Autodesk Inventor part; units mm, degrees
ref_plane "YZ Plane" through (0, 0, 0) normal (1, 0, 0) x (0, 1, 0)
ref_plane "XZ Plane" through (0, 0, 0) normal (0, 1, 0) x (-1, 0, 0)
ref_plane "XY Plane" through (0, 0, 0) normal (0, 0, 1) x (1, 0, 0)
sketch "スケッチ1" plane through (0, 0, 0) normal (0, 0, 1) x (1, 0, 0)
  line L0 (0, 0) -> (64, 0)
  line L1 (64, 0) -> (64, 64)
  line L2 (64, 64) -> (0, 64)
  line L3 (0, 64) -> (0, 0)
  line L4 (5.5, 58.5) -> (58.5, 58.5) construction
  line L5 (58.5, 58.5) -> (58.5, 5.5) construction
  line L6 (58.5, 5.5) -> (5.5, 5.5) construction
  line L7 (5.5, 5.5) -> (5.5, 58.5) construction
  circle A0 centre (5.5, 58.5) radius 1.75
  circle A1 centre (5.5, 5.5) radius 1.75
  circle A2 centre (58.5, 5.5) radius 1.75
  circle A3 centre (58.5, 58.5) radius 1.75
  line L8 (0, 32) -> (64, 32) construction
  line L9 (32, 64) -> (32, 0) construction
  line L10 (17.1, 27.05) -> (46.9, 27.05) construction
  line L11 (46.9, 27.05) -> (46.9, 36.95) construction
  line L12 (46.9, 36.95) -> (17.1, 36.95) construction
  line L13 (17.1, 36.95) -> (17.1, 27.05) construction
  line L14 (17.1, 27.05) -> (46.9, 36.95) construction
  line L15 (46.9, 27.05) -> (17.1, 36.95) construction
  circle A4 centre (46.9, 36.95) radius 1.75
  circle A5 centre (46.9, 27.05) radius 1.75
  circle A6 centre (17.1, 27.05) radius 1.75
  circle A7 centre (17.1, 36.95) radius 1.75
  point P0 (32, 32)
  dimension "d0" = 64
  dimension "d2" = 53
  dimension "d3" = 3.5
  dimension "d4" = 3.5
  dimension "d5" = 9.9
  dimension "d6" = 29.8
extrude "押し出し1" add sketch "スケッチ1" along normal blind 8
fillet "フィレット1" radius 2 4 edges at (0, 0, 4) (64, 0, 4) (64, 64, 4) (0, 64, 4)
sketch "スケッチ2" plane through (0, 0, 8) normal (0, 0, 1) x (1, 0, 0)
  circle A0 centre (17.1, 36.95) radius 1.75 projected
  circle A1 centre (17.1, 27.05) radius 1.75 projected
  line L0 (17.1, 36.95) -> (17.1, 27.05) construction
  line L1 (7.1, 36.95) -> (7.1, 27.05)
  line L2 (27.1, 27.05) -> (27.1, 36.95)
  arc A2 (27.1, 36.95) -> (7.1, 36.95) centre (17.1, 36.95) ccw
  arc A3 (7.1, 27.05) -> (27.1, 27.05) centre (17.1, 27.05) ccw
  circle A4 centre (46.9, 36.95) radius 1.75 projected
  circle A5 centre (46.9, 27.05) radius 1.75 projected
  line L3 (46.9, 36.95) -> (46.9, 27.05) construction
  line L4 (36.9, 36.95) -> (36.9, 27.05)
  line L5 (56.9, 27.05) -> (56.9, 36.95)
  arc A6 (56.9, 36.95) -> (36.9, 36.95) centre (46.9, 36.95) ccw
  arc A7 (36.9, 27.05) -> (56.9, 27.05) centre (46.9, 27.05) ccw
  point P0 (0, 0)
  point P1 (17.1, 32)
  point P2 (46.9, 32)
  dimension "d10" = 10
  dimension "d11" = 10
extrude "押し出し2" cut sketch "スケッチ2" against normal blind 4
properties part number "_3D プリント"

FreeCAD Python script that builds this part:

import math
import FreeCAD as App
import Part
import Sketcher
from FreeCAD import Vector
Q = App.Units.Quantity


def edges_at(feature, points):
    """Names of the edges that pass closest to the given points."""
    edges = feature.Shape.Edges
    near = lambda p: min(range(len(edges)), key=lambda i: edges[i].distToShape(Part.Vertex(*p))[0])
    return sorted({f"Edge{near(p) + 1}" for p in points})

doc = App.newDocument("Part")
body = doc.addObject("PartDesign::Body", "Body")

sketch1 = doc.addObject("Sketcher::SketchObject", "Sketch")
body.addObject(sketch1)
sketch1.AttachmentSupport = (doc.XY_Plane, [""])
sketch1.MapMode = "FlatFace"
sketch1.addGeometry(Part.LineSegment(Vector(0, 64, 0), Vector(0, 0, 0)), False)
sketch1.addGeometry(Part.LineSegment(Vector(0, 0, 0), Vector(64, 0, 0)), False)
sketch1.addGeometry(Part.LineSegment(Vector(64, 0, 0), Vector(64, 64, 0)), False)
sketch1.addGeometry(Part.LineSegment(Vector(64, 64, 0), Vector(0, 64, 0)), False)
sketch1.addGeometry(Part.Circle(Vector(5.5, 5.5, 0), Vector(0, 0, 1), 1.8), False)
sketch1.addGeometry(Part.Circle(Vector(17.1, 27.1, 0), Vector(0, 0, 1), 1.8), False)
sketch1.addGeometry(Part.Circle(Vector(58.5, 5.5, 0), Vector(0, 0, 1), 1.8), False)
sketch1.addGeometry(Part.Circle(Vector(46.9, 27.1, 0), Vector(0, 0, 1), 1.8), False)
sketch1.addGeometry(Part.Circle(Vector(17.1, 37, 0), Vector(0, 0, 1), 1.8), False)
sketch1.addGeometry(Part.Circle(Vector(5.5, 58.5, 0), Vector(0, 0, 1), 1.8), False)
sketch1.addGeometry(Part.Circle(Vector(46.9, 37, 0), Vector(0, 0, 1), 1.8), False)
sketch1.addGeometry(Part.Circle(Vector(58.5, 58.5, 0), Vector(0, 0, 1), 1.8), False)
sketch1.addConstraint(Sketcher.Constraint("Coincident", 0, 2, 1, 1))
sketch1.addConstraint(Sketcher.Constraint("Coincident", 1, 2, 2, 1))
sketch1.addConstraint(Sketcher.Constraint("Coincident", 2, 2, 3, 1))
sketch1.addConstraint(Sketcher.Constraint("Coincident", 3, 2, 0, 1))
sketch1.addConstraint(Sketcher.Constraint("Vertical", 0))
sketch1.addConstraint(Sketcher.Constraint("Horizontal", 1))
sketch1.addConstraint(Sketcher.Constraint("Vertical", 2))
sketch1.addConstraint(Sketcher.Constraint("Horizontal", 3))
sketch1.addConstraint(Sketcher.Constraint("Coincident", 0, 2, -1, 1))
sketch1.addConstraint(Sketcher.Constraint("Equal", 4, 5))
sketch1.addConstraint(Sketcher.Constraint("Equal", 5, 6))
sketch1.addConstraint(Sketcher.Constraint("Equal", 6, 7))
sketch1.addConstraint(Sketcher.Constraint("Equal", 7, 8))
sketch1.addConstraint(Sketcher.Constraint("Equal", 8, 9))
sketch1.addConstraint(Sketcher.Constraint("Equal", 9, 10))
sketch1.addConstraint(Sketcher.Constraint("Equal", 10, 11))
sketch1.addConstraint(Sketcher.Constraint("Horizontal", 4, 3, 6, 3))
sketch1.addConstraint(Sketcher.Constraint("Horizontal", 5, 3, 7, 3))
sketch1.addConstraint(Sketcher.Constraint("Horizontal", 8, 3, 10, 3))
sketch1.addConstraint(Sketcher.Constraint("Horizontal", 9, 3, 11, 3))
sketch1.addConstraint(Sketcher.Constraint("Vertical", 5, 3, 8, 3))
sketch1.addConstraint(Sketcher.Constraint("Vertical", 4, 3, 9, 3))
sketch1.addConstraint(Sketcher.Constraint("Vertical", 7, 3, 10, 3))
sketch1.addConstraint(Sketcher.Constraint("Vertical", 6, 3, 11, 3))
sketch1.addConstraint(Sketcher.Constraint("Equal", 3, 0))
sketch1.addConstraint(Sketcher.Constraint("Diameter", 4, Q("3.5 mm")))
sketch1.addConstraint(Sketcher.Constraint("DistanceX", 1, 1, 1, 2, Q("64 mm")))
sketch1.addConstraint(Sketcher.Constraint("DistanceX", 4, 3, 6, 3, Q("53 mm")))
sketch1.addConstraint(Sketcher.Constraint("DistanceY", 4, 3, 9, 3, Q("53 mm")))
sketch1.addConstraint(Sketcher.Constraint("DistanceX", 5, 3, 7, 3, Q("29.8 mm")))
sketch1.addConstraint(Sketcher.Constraint("DistanceY", 5, 3, 8, 3, Q("9.9 mm")))
sketch1.addConstraint(Sketcher.Constraint("DistanceX", -1, 1, 4, 3, Q("5.5 mm")))
sketch1.addConstraint(Sketcher.Constraint("DistanceY", -1, 1, 4, 3, Q("5.5 mm")))
sketch1.addConstraint(Sketcher.Constraint("DistanceX", -1, 1, 5, 3, Q("17.1 mm")))
sketch1.addConstraint(Sketcher.Constraint("DistanceY", -1, 1, 5, 3, Q("27.05 mm")))
pad1 = doc.addObject("PartDesign::Pad", "Pad")
body.addObject(pad1)
pad1.Profile = sketch1
pad1.Length = 8
doc.recompute()

fillet = doc.addObject("PartDesign::Fillet", "Fillet")
body.addObject(fillet)
fillet.Base = (pad1, edges_at(pad1, [
    (0, 0, 4),
    (64, 0, 4),
    (64, 64, 4),
    (0, 64, 4),
]))
fillet.Radius = 2

sketch2 = doc.addObject("Sketcher::SketchObject", "Sketch001")
body.addObject(sketch2)
sketch2.AttachmentSupport = (doc.XY_Plane, [""])
sketch2.MapMode = "FlatFace"
sketch2.AttachmentOffset = App.Placement(Vector(0, 0, 8), App.Rotation())
sketch2.addGeometry(Part.ArcOfCircle(Part.Circle(Vector(17.1, 37, 0), Vector(0, 0, 1), 10), math.radians(0), math.radians(180)), False)
sketch2.addGeometry(Part.LineSegment(Vector(7.1, 37, 0), Vector(7.1, 27.1, 0)), False)
sketch2.addGeometry(Part.ArcOfCircle(Part.Circle(Vector(17.1, 27.1, 0), Vector(0, 0, 1), 10), math.radians(180), math.radians(360)), False)
sketch2.addGeometry(Part.LineSegment(Vector(27.1, 27.1, 0), Vector(27.1, 37, 0)), False)
sketch2.addGeometry(Part.Circle(Vector(17.1, 27.1, 0), Vector(0, 0, 1), 1.8), False)
sketch2.addGeometry(Part.Circle(Vector(17.1, 37, 0), Vector(0, 0, 1), 1.8), False)
sketch2.addGeometry(Part.ArcOfCircle(Part.Circle(Vector(46.9, 37, 0), Vector(0, 0, 1), 10), math.radians(0), math.radians(180)), False)
sketch2.addGeometry(Part.LineSegment(Vector(36.9, 37, 0), Vector(36.9, 27.1, 0)), False)
sketch2.addGeometry(Part.ArcOfCircle(Part.Circle(Vector(46.9, 27.1, 0), Vector(0, 0, 1), 10), math.radians(180), math.radians(360)), False)
sketch2.addGeometry(Part.LineSegment(Vector(56.9, 27.1, 0), Vector(56.9, 37, 0)), False)
sketch2.addGeometry(Part.Circle(Vector(46.9, 27.1, 0), Vector(0, 0, 1), 1.8), False)
sketch2.addGeometry(Part.Circle(Vector(46.9, 37, 0), Vector(0, 0, 1), 1.8), False)
sketch2.addConstraint(Sketcher.Constraint("Tangent", 0, 2, 1, 1))
sketch2.addConstraint(Sketcher.Constraint("Tangent", 1, 2, 2, 1))
sketch2.addConstraint(Sketcher.Constraint("Tangent", 2, 2, 3, 1))
sketch2.addConstraint(Sketcher.Constraint("Tangent", 3, 2, 0, 1))
sketch2.addConstraint(Sketcher.Constraint("Tangent", 6, 2, 7, 1))
sketch2.addConstraint(Sketcher.Constraint("Tangent", 7, 2, 8, 1))
sketch2.addConstraint(Sketcher.Constraint("Tangent", 8, 2, 9, 1))
sketch2.addConstraint(Sketcher.Constraint("Tangent", 9, 2, 6, 1))
sketch2.addConstraint(Sketcher.Constraint("Vertical", 1))
sketch2.addConstraint(Sketcher.Constraint("Vertical", 3))
sketch2.addConstraint(Sketcher.Constraint("Vertical", 7))
sketch2.addConstraint(Sketcher.Constraint("Vertical", 9))
sketch2.addConstraint(Sketcher.Constraint("Coincident", 4, 3, 2, 3))
sketch2.addConstraint(Sketcher.Constraint("Coincident", 5, 3, 0, 3))
sketch2.addConstraint(Sketcher.Constraint("Coincident", 10, 3, 8, 3))
sketch2.addConstraint(Sketcher.Constraint("Coincident", 11, 3, 6, 3))
sketch2.addConstraint(Sketcher.Constraint("Equal", 4, 5))
sketch2.addConstraint(Sketcher.Constraint("Equal", 2, 6))
sketch2.addConstraint(Sketcher.Constraint("Equal", 5, 10))
sketch2.addConstraint(Sketcher.Constraint("Equal", 10, 11))
sketch2.addConstraint(Sketcher.Constraint("Horizontal", 5, 3, 6, 3))
sketch2.addConstraint(Sketcher.Constraint("Horizontal", 4, 3, 8, 3))
sketch2.addConstraint(Sketcher.Constraint("Radius", 0, Q("10 mm")))
sketch2.addConstraint(Sketcher.Constraint("Diameter", 4, Q("3.5 mm")))
sketch2.addConstraint(Sketcher.Constraint("DistanceY", 1, 2, 1, 1, Q("9.9 mm")))
sketch2.addConstraint(Sketcher.Constraint("DistanceX", -1, 1, 0, 3, Q("17.1 mm")))
sketch2.addConstraint(Sketcher.Constraint("DistanceX", -1, 1, 6, 3, Q("46.9 mm")))
sketch2.addConstraint(Sketcher.Constraint("DistanceY", -1, 1, 0, 3, Q("36.95 mm")))
pocket1 = doc.addObject("PartDesign::Pocket", "Pocket")
body.addObject(pocket1)
pocket1.Profile = sketch2
pocket1.Length = 4

doc.recompute()
